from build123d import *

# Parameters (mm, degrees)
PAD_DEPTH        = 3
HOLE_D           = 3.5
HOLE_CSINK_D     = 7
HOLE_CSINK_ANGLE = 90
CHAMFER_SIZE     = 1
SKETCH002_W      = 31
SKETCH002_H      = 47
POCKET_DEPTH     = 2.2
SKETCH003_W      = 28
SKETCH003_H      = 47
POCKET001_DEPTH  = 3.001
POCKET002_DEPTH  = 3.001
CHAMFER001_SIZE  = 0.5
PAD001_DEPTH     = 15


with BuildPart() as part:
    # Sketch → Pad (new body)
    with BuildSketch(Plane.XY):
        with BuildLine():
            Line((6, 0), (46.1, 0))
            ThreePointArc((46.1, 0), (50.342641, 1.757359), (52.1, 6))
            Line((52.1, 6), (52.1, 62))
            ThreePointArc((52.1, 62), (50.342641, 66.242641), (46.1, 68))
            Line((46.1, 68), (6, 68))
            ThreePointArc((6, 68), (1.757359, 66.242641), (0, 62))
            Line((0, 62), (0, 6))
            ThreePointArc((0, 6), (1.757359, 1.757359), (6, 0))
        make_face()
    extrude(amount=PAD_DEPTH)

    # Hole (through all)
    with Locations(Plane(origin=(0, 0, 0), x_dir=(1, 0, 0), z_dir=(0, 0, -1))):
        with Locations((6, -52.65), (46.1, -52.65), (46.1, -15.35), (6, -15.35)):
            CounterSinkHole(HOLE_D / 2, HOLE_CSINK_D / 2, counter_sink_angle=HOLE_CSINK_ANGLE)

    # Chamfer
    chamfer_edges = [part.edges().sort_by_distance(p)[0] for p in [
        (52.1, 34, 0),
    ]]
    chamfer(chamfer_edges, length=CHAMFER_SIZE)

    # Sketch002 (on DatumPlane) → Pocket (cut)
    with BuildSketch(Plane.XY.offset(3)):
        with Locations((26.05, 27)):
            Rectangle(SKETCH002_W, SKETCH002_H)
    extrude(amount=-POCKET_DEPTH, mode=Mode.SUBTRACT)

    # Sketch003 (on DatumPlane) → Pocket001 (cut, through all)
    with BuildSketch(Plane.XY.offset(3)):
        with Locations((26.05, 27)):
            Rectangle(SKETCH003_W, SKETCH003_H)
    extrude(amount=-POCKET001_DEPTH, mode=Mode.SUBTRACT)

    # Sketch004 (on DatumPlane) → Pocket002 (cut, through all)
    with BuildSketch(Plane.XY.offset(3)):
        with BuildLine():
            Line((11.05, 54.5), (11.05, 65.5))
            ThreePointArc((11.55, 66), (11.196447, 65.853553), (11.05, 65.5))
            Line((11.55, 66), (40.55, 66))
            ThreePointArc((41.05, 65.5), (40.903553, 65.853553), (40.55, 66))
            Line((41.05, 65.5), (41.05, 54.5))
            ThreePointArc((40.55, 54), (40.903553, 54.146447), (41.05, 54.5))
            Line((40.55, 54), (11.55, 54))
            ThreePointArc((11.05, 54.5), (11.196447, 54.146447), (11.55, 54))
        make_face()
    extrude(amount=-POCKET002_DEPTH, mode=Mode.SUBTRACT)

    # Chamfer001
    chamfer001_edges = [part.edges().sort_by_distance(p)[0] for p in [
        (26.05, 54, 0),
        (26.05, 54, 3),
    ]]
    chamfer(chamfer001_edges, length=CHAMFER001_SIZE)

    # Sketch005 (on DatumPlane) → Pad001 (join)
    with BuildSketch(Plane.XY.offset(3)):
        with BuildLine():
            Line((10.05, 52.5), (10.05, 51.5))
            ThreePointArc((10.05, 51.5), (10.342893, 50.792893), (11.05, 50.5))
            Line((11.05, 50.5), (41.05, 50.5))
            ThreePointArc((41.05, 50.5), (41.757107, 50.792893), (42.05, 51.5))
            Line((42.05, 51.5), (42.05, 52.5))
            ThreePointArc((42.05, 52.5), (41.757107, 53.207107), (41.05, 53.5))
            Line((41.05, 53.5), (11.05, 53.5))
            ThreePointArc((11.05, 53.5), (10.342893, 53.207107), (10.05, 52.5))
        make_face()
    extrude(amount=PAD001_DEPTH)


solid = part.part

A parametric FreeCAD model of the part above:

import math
import FreeCAD as App
import Part
import Sketcher


def edges_at(feature, points):
    """Names of the edges that pass closest to the given points."""
    edges = feature.Shape.Edges
    near = lambda p: min(range(len(edges)), key=lambda i: edges[i].distToShape(Part.Vertex(*p))[0])
    return sorted({f"Edge{near(p) + 1}" for p in points})

doc = App.newDocument("Part")
body = doc.addObject("PartDesign::Body", "Body")

# Sketch on XY plane
sketch1 = body.newObject("Sketcher::SketchObject", "Sketch")
sketch1.AttachmentSupport = (doc.getObject("XY_Plane"), [""])
sketch1.MapMode = "FlatFace"
sketch1.addGeometry(Part.LineSegment(App.Vector(6, 0, 0), App.Vector(46, 0, 0)), False)
sketch1.addGeometry(Part.ArcOfCircle(Part.Circle(App.Vector(46, 6, 0), App.Vector(0, 0, 1), 6), math.radians(-90), math.radians(0)), False)
sketch1.addGeometry(Part.LineSegment(App.Vector(52, 6, 0), App.Vector(52, 62, 0)), False)
sketch1.addGeometry(Part.ArcOfCircle(Part.Circle(App.Vector(46, 62, 0), App.Vector(0, 0, 1), 6), math.radians(0), math.radians(90)), False)
sketch1.addGeometry(Part.LineSegment(App.Vector(46, 68, 0), App.Vector(6, 68, 0)), False)
sketch1.addGeometry(Part.ArcOfCircle(Part.Circle(App.Vector(6, 62, 0), App.Vector(0, 0, 1), 6), math.radians(90), math.radians(180)), False)
sketch1.addGeometry(Part.LineSegment(App.Vector(0, 62, 0), App.Vector(0, 6, 0)), False)
sketch1.addGeometry(Part.ArcOfCircle(Part.Circle(App.Vector(6, 6, 0), App.Vector(0, 0, 1), 6), math.radians(180), math.radians(270)), False)
sketch1.addConstraint(Sketcher.Constraint("Tangent", 0, 2, 1, 1))
sketch1.addConstraint(Sketcher.Constraint("Tangent", 1, 2, 2, 1))
sketch1.addConstraint(Sketcher.Constraint("Tangent", 2, 2, 3, 1))
sketch1.addConstraint(Sketcher.Constraint("Tangent", 3, 2, 4, 1))
sketch1.addConstraint(Sketcher.Constraint("Tangent", 4, 2, 5, 1))
sketch1.addConstraint(Sketcher.Constraint("Tangent", 5, 2, 6, 1))
sketch1.addConstraint(Sketcher.Constraint("Tangent", 6, 2, 7, 1))
sketch1.addConstraint(Sketcher.Constraint("Tangent", 7, 2, 0, 1))
sketch1.addConstraint(Sketcher.Constraint("Horizontal", 0))
sketch1.addConstraint(Sketcher.Constraint("Vertical", 2))
sketch1.addConstraint(Sketcher.Constraint("Horizontal", 4))
sketch1.addConstraint(Sketcher.Constraint("Vertical", 6))
sketch1.addConstraint(Sketcher.Constraint("Equal", 1, 3))
sketch1.addConstraint(Sketcher.Constraint("Equal", 3, 5))
sketch1.addConstraint(Sketcher.Constraint("Equal", 5, 7))
sketch1.addConstraint(Sketcher.Constraint("PointOnObject", 0, 2, -1))
sketch1.addConstraint(Sketcher.Constraint("PointOnObject", 5, 2, -2))
sketch1.addConstraint(Sketcher.Constraint("Radius", 1, 5.999999))
sketch1.addConstraint(Sketcher.Constraint("DistanceY", 2, 1, 2, 2, 56.0))
sketch1.addConstraint(Sketcher.Constraint("DistanceX", 0, 1, 0, 2, 40.1))
pad1 = body.newObject("PartDesign::Pad", "Pad")
pad1.Profile = sketch1
pad1.Length = 3

# Sketch on XY plane
sketch2 = body.newObject("Sketcher::SketchObject", "Sketch001")
sketch2.AttachmentSupport = (doc.getObject("XY_Plane"), [""])
sketch2.MapMode = "FlatFace"
sketch2.addGeometry(Part.Circle(App.Vector(6, 52.6, 0), App.Vector(0, 0, 1), 1.8), False)
sketch2.addGeometry(Part.Circle(App.Vector(46.1, 52.6, 0), App.Vector(0, 0, 1), 1.8), False)
sketch2.addGeometry(Part.Circle(App.Vector(46.1, 15.3, 0), App.Vector(0, 0, 1), 1.8), False)
sketch2.addGeometry(Part.Circle(App.Vector(6, 15.3, 0), App.Vector(0, 0, 1), 1.8), False)
sketch2.addConstraint(Sketcher.Constraint("Equal", 0, 1))
sketch2.addConstraint(Sketcher.Constraint("Equal", 1, 2))
sketch2.addConstraint(Sketcher.Constraint("Equal", 2, 3))
sketch2.addConstraint(Sketcher.Constraint("Horizontal", 0, 3, 1, 3))
sketch2.addConstraint(Sketcher.Constraint("Horizontal", 2, 3, 3, 3))
sketch2.addConstraint(Sketcher.Constraint("Vertical", 1, 3, 2, 3))
sketch2.addConstraint(Sketcher.Constraint("Vertical", 0, 3, 3, 3))
sketch2.addConstraint(Sketcher.Constraint("Diameter", 0, 3.5))
sketch2.addConstraint(Sketcher.Constraint("DistanceX", -1, 1, 0, 3, 6.0))
sketch2.addConstraint(Sketcher.Constraint("DistanceX", -1, 1, 1, 3, 46.1))
sketch2.addConstraint(Sketcher.Constraint("DistanceY", 2, 3, 1, 3, 37.3))
sketch2.addConstraint(Sketcher.Constraint("DistanceY", -1, 1, 0, 3, 52.65))
doc.recompute()
hole = body.newObject("PartDesign::Hole", "Hole")
hole.Profile = sketch2
hole.ThreadType = "None"
hole.Diameter = 3.5
hole.DepthType = "ThroughAll"
hole.HoleCutType = "Countersink"
hole.HoleCutDiameter = 7
hole.HoleCutCountersinkAngle = 90
hole.Reversed = True
doc.recompute()

chamfer = body.newObject("PartDesign::Chamfer", "Chamfer")
chamfer.Base = (hole, edges_at(hole, [(52.1, 34, 0)]))
chamfer.Size = 1

# Sketch on XY plane
sketch3 = body.newObject("Sketcher::SketchObject", "Sketch002")
sketch3.AttachmentSupport = (doc.getObject("XY_Plane"), [""])
sketch3.MapMode = "FlatFace"
sketch3.AttachmentOffset = App.Placement(App.Vector(0, 0, 3), App.Rotation())
sketch3.addGeometry(Part.LineSegment(App.Vector(11, 50, 0), App.Vector(11, 4, 0)), False)
sketch3.addGeometry(Part.LineSegment(App.Vector(11, 4, 0), App.Vector(42, 4, 0)), False)
sketch3.addGeometry(Part.LineSegment(App.Vector(42, 4, 0), App.Vector(42, 50, 0)), False)
sketch3.addGeometry(Part.LineSegment(App.Vector(42, 50, 0), App.Vector(11, 50, 0)), False)
sketch3.addConstraint(Sketcher.Constraint("Coincident", 0, 2, 1, 1))
sketch3.addConstraint(Sketcher.Constraint("Coincident", 1, 2, 2, 1))
sketch3.addConstraint(Sketcher.Constraint("Coincident", 2, 2, 3, 1))
sketch3.addConstraint(Sketcher.Constraint("Coincident", 3, 2, 0, 1))
sketch3.addConstraint(Sketcher.Constraint("Vertical", 0))
sketch3.addConstraint(Sketcher.Constraint("Horizontal", 1))
sketch3.addConstraint(Sketcher.Constraint("Vertical", 2))
sketch3.addConstraint(Sketcher.Constraint("Horizontal", 3))
sketch3.addConstraint(Sketcher.Constraint("DistanceX", 1, 1, 1, 2, 31.0))
sketch3.addConstraint(Sketcher.Constraint("DistanceY", 0, 2, 0, 1, 47.0))
sketch3.addConstraint(Sketcher.Constraint("DistanceY", -1, 1, 0, 2, 3.5))
sketch3.addConstraint(Sketcher.Constraint("DistanceX", -1, 1, 0, 2, 10.55))
pocket1 = body.newObject("PartDesign::Pocket", "Pocket")
pocket1.Profile = sketch3
pocket1.Length = 2.2

# Sketch on XY plane
sketch4 = body.newObject("Sketcher::SketchObject", "Sketch003")
sketch4.AttachmentSupport = (doc.getObject("XY_Plane"), [""])
sketch4.MapMode = "FlatFace"
sketch4.AttachmentOffset = App.Placement(App.Vector(0, 0, 3), App.Rotation())
sketch4.addGeometry(Part.LineSegment(App.Vector(12, 50, 0), App.Vector(12, 4, 0)), False)
sketch4.addGeometry(Part.LineSegment(App.Vector(12, 4, 0), App.Vector(40, 4, 0)), False)
sketch4.addGeometry(Part.LineSegment(App.Vector(40, 4, 0), App.Vector(40, 50, 0)), False)
sketch4.addGeometry(Part.LineSegment(App.Vector(40, 50, 0), App.Vector(12, 50, 0)), False)
sketch4.addConstraint(Sketcher.Constraint("Coincident", 0, 2, 1, 1))
sketch4.addConstraint(Sketcher.Constraint("Coincident", 1, 2, 2, 1))
sketch4.addConstraint(Sketcher.Constraint("Coincident", 2, 2, 3, 1))
sketch4.addConstraint(Sketcher.Constraint("Coincident", 3, 2, 0, 1))
sketch4.addConstraint(Sketcher.Constraint("Vertical", 0))
sketch4.addConstraint(Sketcher.Constraint("Horizontal", 1))
sketch4.addConstraint(Sketcher.Constraint("Vertical", 2))
sketch4.addConstraint(Sketcher.Constraint("Horizontal", 3))
sketch4.addConstraint(Sketcher.Constraint("DistanceX", 1, 1, 1, 2, 28.0))
sketch4.addConstraint(Sketcher.Constraint("DistanceY", 0, 2, 0, 1, 47.0))
sketch4.addConstraint(Sketcher.Constraint("DistanceY", -1, 1, 0, 2, 3.5))
sketch4.addConstraint(Sketcher.Constraint("DistanceX", -1, 1, 0, 2, 12.05))
pocket2 = body.newObject("PartDesign::Pocket", "Pocket001")
pocket2.Profile = sketch4
pocket2.Type = "ThroughAll"

# Sketch on XY plane
sketch5 = body.newObject("Sketcher::SketchObject", "Sketch004")
sketch5.AttachmentSupport = (doc.getObject("XY_Plane"), [""])
sketch5.MapMode = "FlatFace"
sketch5.AttachmentOffset = App.Placement(App.Vector(0, 0, 3), App.Rotation())
sketch5.addGeometry(Part.LineSegment(App.Vector(11.1, 65.5, 0), App.Vector(11.1, 54.5, 0)), False)
sketch5.addGeometry(Part.ArcOfCircle(Part.Circle(App.Vector(11.6, 54.5, 0), App.Vector(0, 0, 1), 0.5), math.radians(-180), math.radians(-90)), False)
sketch5.addGeometry(Part.LineSegment(App.Vector(11.6, 54, 0), App.Vector(40.5, 54, 0)), False)
sketch5.addGeometry(Part.ArcOfCircle(Part.Circle(App.Vector(40.5, 54.5, 0), App.Vector(0, 0, 1), 0.5), math.radians(-90), math.radians(0)), False)
sketch5.addGeometry(Part.LineSegment(App.Vector(41, 54.5, 0), App.Vector(41, 65.5, 0)), False)
sketch5.addGeometry(Part.ArcOfCircle(Part.Circle(App.Vector(40.5, 65.5, 0), App.Vector(0, 0, 1), 0.5), math.radians(0), math.radians(90)), False)
sketch5.addGeometry(Part.LineSegment(App.Vector(40.5, 66, 0), App.Vector(11.6, 66, 0)), False)
sketch5.addGeometry(Part.ArcOfCircle(Part.Circle(App.Vector(11.6, 65.5, 0), App.Vector(0, 0, 1), 0.5), math.radians(90), math.radians(180)), False)
sketch5.addConstraint(Sketcher.Constraint("Coincident", 0, 2, 1, 1))
sketch5.addConstraint(Sketcher.Constraint("Coincident", 1, 2, 2, 1))
sketch5.addConstraint(Sketcher.Constraint("Coincident", 2, 2, 3, 1))
sketch5.addConstraint(Sketcher.Constraint("Coincident", 3, 2, 4, 1))
sketch5.addConstraint(Sketcher.Constraint("Coincident", 4, 2, 5, 1))
sketch5.addConstraint(Sketcher.Constraint("Coincident", 5, 2, 6, 1))
sketch5.addConstraint(Sketcher.Constraint("Coincident", 6, 2, 7, 1))
sketch5.addConstraint(Sketcher.Constraint("Coincident", 7, 2, 0, 1))
sketch5.addConstraint(Sketcher.Constraint("Vertical", 0))
sketch5.addConstraint(Sketcher.Constraint("Horizontal", 2))
sketch5.addConstraint(Sketcher.Constraint("Vertical", 4))
sketch5.addConstraint(Sketcher.Constraint("Horizontal", 6))
sketch5.addConstraint(Sketcher.Constraint("Equal", 1, 3))
sketch5.addConstraint(Sketcher.Constraint("Equal", 3, 5))
sketch5.addConstraint(Sketcher.Constraint("Equal", 5, 7))
sketch5.addConstraint(Sketcher.Constraint("Horizontal", 3, 3, 0, 2))
sketch5.addConstraint(Sketcher.Constraint("Horizontal", 0, 2, 3, 2))
sketch5.addConstraint(Sketcher.Constraint("Horizontal", 7, 3, 4, 2))
sketch5.addConstraint(Sketcher.Constraint("Horizontal", 4, 2, 7, 2))
sketch5.addConstraint(Sketcher.Constraint("Vertical", 7, 3, 1, 2))
sketch5.addConstraint(Sketcher.Constraint("Vertical", 5, 3, 2, 2))
sketch5.addConstraint(Sketcher.Constraint("Vertical", 2, 2, 5, 2))
sketch5.addConstraint(Sketcher.Constraint("Vertical", 1, 2, 6, 2))
sketch5.addConstraint(Sketcher.Constraint("Radius", 1, 0.500001))
sketch5.addConstraint(Sketcher.Constraint("DistanceX", 2, 1, 2, 2, 29.0))
sketch5.addConstraint(Sketcher.Constraint("DistanceY", 0, 2, 0, 1, 11.0))
sketch5.addConstraint(Sketcher.Constraint("DistanceY", -1, 1, 1, 2, 54.0))
sketch5.addConstraint(Sketcher.Constraint("DistanceX", -1, 1, 1, 3, 11.550001))
pocket3 = body.newObject("PartDesign::Pocket", "Pocket002")
pocket3.Profile = sketch5
pocket3.Type = "ThroughAll"
doc.recompute()

chamfer2 = body.newObject("PartDesign::Chamfer", "Chamfer001")
chamfer2.Base = (pocket3, edges_at(pocket3, [(26.05, 54, 0), (26.05, 54, 3)]))
chamfer2.Size = 0.5

# Sketch on XY plane
sketch6 = body.newObject("Sketcher::SketchObject", "Sketch005")
sketch6.AttachmentSupport = (doc.getObject("XY_Plane"), [""])
sketch6.MapMode = "FlatFace"
sketch6.AttachmentOffset = App.Placement(App.Vector(0, 0, 3), App.Rotation())
sketch6.addGeometry(Part.LineSegment(App.Vector(10.1, 52.5, 0), App.Vector(10.1, 51.5, 0)), False)
sketch6.addGeometry(Part.ArcOfCircle(Part.Circle(App.Vector(11, 51.5, 0), App.Vector(0, 0, 1), 1), math.radians(180), math.radians(270)), False)
sketch6.addGeometry(Part.LineSegment(App.Vector(11.1, 50.5, 0), App.Vector(41, 50.5, 0)), False)
sketch6.addGeometry(Part.ArcOfCircle(Part.Circle(App.Vector(41.1, 51.5, 0), App.Vector(0, 0, 1), 1), math.radians(-90), math.radians(0)), False)
sketch6.addGeometry(Part.LineSegment(App.Vector(42, 51.5, 0), App.Vector(42, 52.5, 0)), False)
sketch6.addGeometry(Part.ArcOfCircle(Part.Circle(App.Vector(41.1, 52.5, 0), App.Vector(0, 0, 1), 1), math.radians(0), math.radians(90)), False)
sketch6.addGeometry(Part.LineSegment(App.Vector(41, 53.5, 0), App.Vector(11.1, 53.5, 0)), False)
sketch6.addGeometry(Part.ArcOfCircle(Part.Circle(App.Vector(11, 52.5, 0), App.Vector(0, 0, 1), 1), math.radians(90), math.radians(180)), False)
sketch6.addConstraint(Sketcher.Constraint("Tangent", 0, 2, 1, 1))
sketch6.addConstraint(Sketcher.Constraint("Tangent", 1, 2, 2, 1))
sketch6.addConstraint(Sketcher.Constraint("Tangent", 2, 2, 3, 1))
sketch6.addConstraint(Sketcher.Constraint("Tangent", 3, 2, 4, 1))
sketch6.addConstraint(Sketcher.Constraint("Tangent", 4, 2, 5, 1))
sketch6.addConstraint(Sketcher.Constraint("Tangent", 5, 2, 6, 1))
sketch6.addConstraint(Sketcher.Constraint("Tangent", 6, 2, 7, 1))
sketch6.addConstraint(Sketcher.Constraint("Tangent", 7, 2, 0, 1))
sketch6.addConstraint(Sketcher.Constraint("Vertical", 0))
sketch6.addConstraint(Sketcher.Constraint("Horizontal", 2))
sketch6.addConstraint(Sketcher.Constraint("Vertical", 4))
sketch6.addConstraint(Sketcher.Constraint("Horizontal", 6))
sketch6.addConstraint(Sketcher.Constraint("Equal", 1, 3))
sketch6.addConstraint(Sketcher.Constraint("Equal", 3, 5))
sketch6.addConstraint(Sketcher.Constraint("Equal", 5, 7))
sketch6.addConstraint(Sketcher.Constraint("Radius", 1, 0.999999))
sketch6.addConstraint(Sketcher.Constraint("DistanceX", 2, 1, 2, 2, 30.0))
sketch6.addConstraint(Sketcher.Constraint("DistanceY", 0, 2, 0, 1, 1.0))
sketch6.addConstraint(Sketcher.Constraint("DistanceY", -1, 1, 1, 3, 51.499999))
sketch6.addConstraint(Sketcher.Constraint("DistanceX", -1, 1, 1, 3, 11.049999))
pad2 = body.newObject("PartDesign::Pad", "Pad001")
pad2.Profile = sketch6
pad2.Length = 15

doc.recompute()
